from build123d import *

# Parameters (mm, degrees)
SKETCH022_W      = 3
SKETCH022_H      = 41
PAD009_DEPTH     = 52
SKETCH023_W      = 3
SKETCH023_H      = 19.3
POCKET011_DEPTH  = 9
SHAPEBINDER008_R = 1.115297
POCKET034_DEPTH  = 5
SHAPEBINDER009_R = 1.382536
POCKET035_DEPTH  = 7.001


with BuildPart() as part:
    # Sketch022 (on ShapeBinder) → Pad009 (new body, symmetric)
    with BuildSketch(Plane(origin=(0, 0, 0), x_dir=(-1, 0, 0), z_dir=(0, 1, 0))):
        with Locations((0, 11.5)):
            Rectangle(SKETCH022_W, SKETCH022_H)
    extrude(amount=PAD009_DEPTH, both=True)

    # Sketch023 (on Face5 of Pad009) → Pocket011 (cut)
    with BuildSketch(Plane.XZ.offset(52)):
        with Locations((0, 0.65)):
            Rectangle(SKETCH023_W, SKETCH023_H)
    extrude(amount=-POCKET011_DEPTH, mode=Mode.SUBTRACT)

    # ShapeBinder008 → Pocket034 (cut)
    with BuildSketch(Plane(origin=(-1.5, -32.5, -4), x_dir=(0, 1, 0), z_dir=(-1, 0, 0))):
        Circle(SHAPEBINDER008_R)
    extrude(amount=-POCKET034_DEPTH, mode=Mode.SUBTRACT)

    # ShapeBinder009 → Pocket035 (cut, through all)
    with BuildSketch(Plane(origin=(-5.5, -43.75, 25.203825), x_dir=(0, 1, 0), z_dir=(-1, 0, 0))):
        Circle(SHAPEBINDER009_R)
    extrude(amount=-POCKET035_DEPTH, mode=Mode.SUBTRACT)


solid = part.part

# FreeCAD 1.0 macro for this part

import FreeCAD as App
import Part
import Sketcher
Q = App.Units.Quantity

doc = App.newDocument("Part")
body = doc.addObject("PartDesign::Body", "Body")

sketch1 = body.newObject("Sketcher::SketchObject", "Sketch")
sketch1.AttachmentSupport = (doc.getObject("XZ_Plane"), [""])
sketch1.MapMode = "FlatFace"
sketch1.addGeometry(Part.LineSegment(App.Vector(1.5, 32, 0), App.Vector(1.5, -9, 0)), False)
sketch1.addGeometry(Part.LineSegment(App.Vector(1.5, -9, 0), App.Vector(-1.5, -9, 0)), False)
sketch1.addGeometry(Part.LineSegment(App.Vector(-1.5, -9, 0), App.Vector(-1.5, 32, 0)), False)
sketch1.addGeometry(Part.LineSegment(App.Vector(-1.5, 32, 0), App.Vector(1.5, 32, 0)), False)
sketch1.addConstraint(Sketcher.Constraint("Coincident", 0, 2, 1, 1))
sketch1.addConstraint(Sketcher.Constraint("Coincident", 1, 2, 2, 1))
sketch1.addConstraint(Sketcher.Constraint("Coincident", 2, 2, 3, 1))
sketch1.addConstraint(Sketcher.Constraint("Coincident", 3, 2, 0, 1))
sketch1.addConstraint(Sketcher.Constraint("Vertical", 0))
sketch1.addConstraint(Sketcher.Constraint("Horizontal", 1))
sketch1.addConstraint(Sketcher.Constraint("Vertical", 2))
sketch1.addConstraint(Sketcher.Constraint("Horizontal", 3))
sketch1.addConstraint(Sketcher.Constraint("DistanceX", 1, 2, 1, 1, Q("3 mm")))
sketch1.addConstraint(Sketcher.Constraint("DistanceY", 0, 2, 0, 1, Q("41 mm")))
sketch1.addConstraint(Sketcher.Constraint("DistanceY", 0, 2, -1, 1, Q("9 mm")))
sketch1.addConstraint(Sketcher.Constraint("DistanceX", -1, 1, 0, 2, Q("1.5 mm")))
pad1 = body.newObject("PartDesign::Pad", "Pad")
pad1.Profile = sketch1
pad1.Length = 104
pad1.Midplane = True

sketch2 = body.newObject("Sketcher::SketchObject", "Sketch001")
sketch2.AttachmentSupport = (doc.getObject("XZ_Plane"), [""])
sketch2.MapMode = "FlatFace"
sketch2.AttachmentOffset = App.Placement(App.Vector(0, 0, 52), App.Rotation())
sketch2.addGeometry(Part.LineSegment(App.Vector(-1.5, 10.3, 0), App.Vector(-1.5, -9, 0)), False)
sketch2.addGeometry(Part.LineSegment(App.Vector(-1.5, -9, 0), App.Vector(1.5, -9, 0)), False)
sketch2.addGeometry(Part.LineSegment(App.Vector(1.5, -9, 0), App.Vector(1.5, 10.3, 0)), False)
sketch2.addGeometry(Part.LineSegment(App.Vector(1.5, 10.3, 0), App.Vector(-1.5, 10.3, 0)), False)
sketch2.addConstraint(Sketcher.Constraint("Coincident", 0, 2, 1, 1))
sketch2.addConstraint(Sketcher.Constraint("Coincident", 1, 2, 2, 1))
sketch2.addConstraint(Sketcher.Constraint("Coincident", 2, 2, 3, 1))
sketch2.addConstraint(Sketcher.Constraint("Coincident", 3, 2, 0, 1))
sketch2.addConstraint(Sketcher.Constraint("Vertical", 0))
sketch2.addConstraint(Sketcher.Constraint("Horizontal", 1))
sketch2.addConstraint(Sketcher.Constraint("Vertical", 2))
sketch2.addConstraint(Sketcher.Constraint("Horizontal", 3))
sketch2.addConstraint(Sketcher.Constraint("DistanceX", 1, 1, 1, 2, Q("3 mm")))
sketch2.addConstraint(Sketcher.Constraint("DistanceY", 0, 2, 0, 1, Q("19.3 mm")))
sketch2.addConstraint(Sketcher.Constraint("DistanceY", 0, 2, -1, 1, Q("9 mm")))
sketch2.addConstraint(Sketcher.Constraint("DistanceX", 0, 2, -1, 1, Q("1.5 mm")))
pocket1 = body.newObject("PartDesign::Pocket", "Pocket")
pocket1.Profile = sketch2
pocket1.Length = 9

sketch3 = body.newObject("Sketcher::SketchObject", "Sketch002")
sketch3.AttachmentSupport = (doc.getObject("YZ_Plane"), [""])
sketch3.MapMode = "FlatFace"
sketch3.AttachmentOffset = App.Placement(App.Vector(0, 0, -1.5), App.Rotation())
sketch3.addGeometry(Part.Circle(App.Vector(-32.5, -4, 0), App.Vector(0, 0, 1), 1.1), False)
sketch3.addConstraint(Sketcher.Constraint("DistanceY", 0, 3, -1, 1, Q("4 mm")))
sketch3.addConstraint(Sketcher.Constraint("DistanceX", 0, 3, -1, 1, Q("32.5 mm")))
sketch3.addConstraint(Sketcher.Constraint("Diameter", 0, Q("2.230594 mm")))
pocket2 = body.newObject("PartDesign::Pocket", "Pocket001")
pocket2.Profile = sketch3
pocket2.Length = 5
pocket2.Reversed = True

sketch4 = body.newObject("Sketcher::SketchObject", "Sketch003")
sketch4.AttachmentSupport = (doc.getObject("YZ_Plane"), [""])
sketch4.MapMode = "FlatFace"
sketch4.AttachmentOffset = App.Placement(App.Vector(0, 0, -5.5), App.Rotation())
sketch4.addGeometry(Part.Circle(App.Vector(-43.8, 25.2, 0), App.Vector(0, 0, 1), 1.4), False)
sketch4.addConstraint(Sketcher.Constraint("Diameter", 0, Q("2.765072 mm")))
sketch4.addConstraint(Sketcher.Constraint("DistanceX", 0, 3, -1, 1, Q("43.75 mm")))
sketch4.addConstraint(Sketcher.Constraint("DistanceY", -1, 1, 0, 3, Q("25.203825 mm")))
pocket3 = body.newObject("PartDesign::Pocket", "Pocket002")
pocket3.Profile = sketch4
pocket3.Type = "ThroughAll"
pocket3.Reversed = True

doc.recompute()
